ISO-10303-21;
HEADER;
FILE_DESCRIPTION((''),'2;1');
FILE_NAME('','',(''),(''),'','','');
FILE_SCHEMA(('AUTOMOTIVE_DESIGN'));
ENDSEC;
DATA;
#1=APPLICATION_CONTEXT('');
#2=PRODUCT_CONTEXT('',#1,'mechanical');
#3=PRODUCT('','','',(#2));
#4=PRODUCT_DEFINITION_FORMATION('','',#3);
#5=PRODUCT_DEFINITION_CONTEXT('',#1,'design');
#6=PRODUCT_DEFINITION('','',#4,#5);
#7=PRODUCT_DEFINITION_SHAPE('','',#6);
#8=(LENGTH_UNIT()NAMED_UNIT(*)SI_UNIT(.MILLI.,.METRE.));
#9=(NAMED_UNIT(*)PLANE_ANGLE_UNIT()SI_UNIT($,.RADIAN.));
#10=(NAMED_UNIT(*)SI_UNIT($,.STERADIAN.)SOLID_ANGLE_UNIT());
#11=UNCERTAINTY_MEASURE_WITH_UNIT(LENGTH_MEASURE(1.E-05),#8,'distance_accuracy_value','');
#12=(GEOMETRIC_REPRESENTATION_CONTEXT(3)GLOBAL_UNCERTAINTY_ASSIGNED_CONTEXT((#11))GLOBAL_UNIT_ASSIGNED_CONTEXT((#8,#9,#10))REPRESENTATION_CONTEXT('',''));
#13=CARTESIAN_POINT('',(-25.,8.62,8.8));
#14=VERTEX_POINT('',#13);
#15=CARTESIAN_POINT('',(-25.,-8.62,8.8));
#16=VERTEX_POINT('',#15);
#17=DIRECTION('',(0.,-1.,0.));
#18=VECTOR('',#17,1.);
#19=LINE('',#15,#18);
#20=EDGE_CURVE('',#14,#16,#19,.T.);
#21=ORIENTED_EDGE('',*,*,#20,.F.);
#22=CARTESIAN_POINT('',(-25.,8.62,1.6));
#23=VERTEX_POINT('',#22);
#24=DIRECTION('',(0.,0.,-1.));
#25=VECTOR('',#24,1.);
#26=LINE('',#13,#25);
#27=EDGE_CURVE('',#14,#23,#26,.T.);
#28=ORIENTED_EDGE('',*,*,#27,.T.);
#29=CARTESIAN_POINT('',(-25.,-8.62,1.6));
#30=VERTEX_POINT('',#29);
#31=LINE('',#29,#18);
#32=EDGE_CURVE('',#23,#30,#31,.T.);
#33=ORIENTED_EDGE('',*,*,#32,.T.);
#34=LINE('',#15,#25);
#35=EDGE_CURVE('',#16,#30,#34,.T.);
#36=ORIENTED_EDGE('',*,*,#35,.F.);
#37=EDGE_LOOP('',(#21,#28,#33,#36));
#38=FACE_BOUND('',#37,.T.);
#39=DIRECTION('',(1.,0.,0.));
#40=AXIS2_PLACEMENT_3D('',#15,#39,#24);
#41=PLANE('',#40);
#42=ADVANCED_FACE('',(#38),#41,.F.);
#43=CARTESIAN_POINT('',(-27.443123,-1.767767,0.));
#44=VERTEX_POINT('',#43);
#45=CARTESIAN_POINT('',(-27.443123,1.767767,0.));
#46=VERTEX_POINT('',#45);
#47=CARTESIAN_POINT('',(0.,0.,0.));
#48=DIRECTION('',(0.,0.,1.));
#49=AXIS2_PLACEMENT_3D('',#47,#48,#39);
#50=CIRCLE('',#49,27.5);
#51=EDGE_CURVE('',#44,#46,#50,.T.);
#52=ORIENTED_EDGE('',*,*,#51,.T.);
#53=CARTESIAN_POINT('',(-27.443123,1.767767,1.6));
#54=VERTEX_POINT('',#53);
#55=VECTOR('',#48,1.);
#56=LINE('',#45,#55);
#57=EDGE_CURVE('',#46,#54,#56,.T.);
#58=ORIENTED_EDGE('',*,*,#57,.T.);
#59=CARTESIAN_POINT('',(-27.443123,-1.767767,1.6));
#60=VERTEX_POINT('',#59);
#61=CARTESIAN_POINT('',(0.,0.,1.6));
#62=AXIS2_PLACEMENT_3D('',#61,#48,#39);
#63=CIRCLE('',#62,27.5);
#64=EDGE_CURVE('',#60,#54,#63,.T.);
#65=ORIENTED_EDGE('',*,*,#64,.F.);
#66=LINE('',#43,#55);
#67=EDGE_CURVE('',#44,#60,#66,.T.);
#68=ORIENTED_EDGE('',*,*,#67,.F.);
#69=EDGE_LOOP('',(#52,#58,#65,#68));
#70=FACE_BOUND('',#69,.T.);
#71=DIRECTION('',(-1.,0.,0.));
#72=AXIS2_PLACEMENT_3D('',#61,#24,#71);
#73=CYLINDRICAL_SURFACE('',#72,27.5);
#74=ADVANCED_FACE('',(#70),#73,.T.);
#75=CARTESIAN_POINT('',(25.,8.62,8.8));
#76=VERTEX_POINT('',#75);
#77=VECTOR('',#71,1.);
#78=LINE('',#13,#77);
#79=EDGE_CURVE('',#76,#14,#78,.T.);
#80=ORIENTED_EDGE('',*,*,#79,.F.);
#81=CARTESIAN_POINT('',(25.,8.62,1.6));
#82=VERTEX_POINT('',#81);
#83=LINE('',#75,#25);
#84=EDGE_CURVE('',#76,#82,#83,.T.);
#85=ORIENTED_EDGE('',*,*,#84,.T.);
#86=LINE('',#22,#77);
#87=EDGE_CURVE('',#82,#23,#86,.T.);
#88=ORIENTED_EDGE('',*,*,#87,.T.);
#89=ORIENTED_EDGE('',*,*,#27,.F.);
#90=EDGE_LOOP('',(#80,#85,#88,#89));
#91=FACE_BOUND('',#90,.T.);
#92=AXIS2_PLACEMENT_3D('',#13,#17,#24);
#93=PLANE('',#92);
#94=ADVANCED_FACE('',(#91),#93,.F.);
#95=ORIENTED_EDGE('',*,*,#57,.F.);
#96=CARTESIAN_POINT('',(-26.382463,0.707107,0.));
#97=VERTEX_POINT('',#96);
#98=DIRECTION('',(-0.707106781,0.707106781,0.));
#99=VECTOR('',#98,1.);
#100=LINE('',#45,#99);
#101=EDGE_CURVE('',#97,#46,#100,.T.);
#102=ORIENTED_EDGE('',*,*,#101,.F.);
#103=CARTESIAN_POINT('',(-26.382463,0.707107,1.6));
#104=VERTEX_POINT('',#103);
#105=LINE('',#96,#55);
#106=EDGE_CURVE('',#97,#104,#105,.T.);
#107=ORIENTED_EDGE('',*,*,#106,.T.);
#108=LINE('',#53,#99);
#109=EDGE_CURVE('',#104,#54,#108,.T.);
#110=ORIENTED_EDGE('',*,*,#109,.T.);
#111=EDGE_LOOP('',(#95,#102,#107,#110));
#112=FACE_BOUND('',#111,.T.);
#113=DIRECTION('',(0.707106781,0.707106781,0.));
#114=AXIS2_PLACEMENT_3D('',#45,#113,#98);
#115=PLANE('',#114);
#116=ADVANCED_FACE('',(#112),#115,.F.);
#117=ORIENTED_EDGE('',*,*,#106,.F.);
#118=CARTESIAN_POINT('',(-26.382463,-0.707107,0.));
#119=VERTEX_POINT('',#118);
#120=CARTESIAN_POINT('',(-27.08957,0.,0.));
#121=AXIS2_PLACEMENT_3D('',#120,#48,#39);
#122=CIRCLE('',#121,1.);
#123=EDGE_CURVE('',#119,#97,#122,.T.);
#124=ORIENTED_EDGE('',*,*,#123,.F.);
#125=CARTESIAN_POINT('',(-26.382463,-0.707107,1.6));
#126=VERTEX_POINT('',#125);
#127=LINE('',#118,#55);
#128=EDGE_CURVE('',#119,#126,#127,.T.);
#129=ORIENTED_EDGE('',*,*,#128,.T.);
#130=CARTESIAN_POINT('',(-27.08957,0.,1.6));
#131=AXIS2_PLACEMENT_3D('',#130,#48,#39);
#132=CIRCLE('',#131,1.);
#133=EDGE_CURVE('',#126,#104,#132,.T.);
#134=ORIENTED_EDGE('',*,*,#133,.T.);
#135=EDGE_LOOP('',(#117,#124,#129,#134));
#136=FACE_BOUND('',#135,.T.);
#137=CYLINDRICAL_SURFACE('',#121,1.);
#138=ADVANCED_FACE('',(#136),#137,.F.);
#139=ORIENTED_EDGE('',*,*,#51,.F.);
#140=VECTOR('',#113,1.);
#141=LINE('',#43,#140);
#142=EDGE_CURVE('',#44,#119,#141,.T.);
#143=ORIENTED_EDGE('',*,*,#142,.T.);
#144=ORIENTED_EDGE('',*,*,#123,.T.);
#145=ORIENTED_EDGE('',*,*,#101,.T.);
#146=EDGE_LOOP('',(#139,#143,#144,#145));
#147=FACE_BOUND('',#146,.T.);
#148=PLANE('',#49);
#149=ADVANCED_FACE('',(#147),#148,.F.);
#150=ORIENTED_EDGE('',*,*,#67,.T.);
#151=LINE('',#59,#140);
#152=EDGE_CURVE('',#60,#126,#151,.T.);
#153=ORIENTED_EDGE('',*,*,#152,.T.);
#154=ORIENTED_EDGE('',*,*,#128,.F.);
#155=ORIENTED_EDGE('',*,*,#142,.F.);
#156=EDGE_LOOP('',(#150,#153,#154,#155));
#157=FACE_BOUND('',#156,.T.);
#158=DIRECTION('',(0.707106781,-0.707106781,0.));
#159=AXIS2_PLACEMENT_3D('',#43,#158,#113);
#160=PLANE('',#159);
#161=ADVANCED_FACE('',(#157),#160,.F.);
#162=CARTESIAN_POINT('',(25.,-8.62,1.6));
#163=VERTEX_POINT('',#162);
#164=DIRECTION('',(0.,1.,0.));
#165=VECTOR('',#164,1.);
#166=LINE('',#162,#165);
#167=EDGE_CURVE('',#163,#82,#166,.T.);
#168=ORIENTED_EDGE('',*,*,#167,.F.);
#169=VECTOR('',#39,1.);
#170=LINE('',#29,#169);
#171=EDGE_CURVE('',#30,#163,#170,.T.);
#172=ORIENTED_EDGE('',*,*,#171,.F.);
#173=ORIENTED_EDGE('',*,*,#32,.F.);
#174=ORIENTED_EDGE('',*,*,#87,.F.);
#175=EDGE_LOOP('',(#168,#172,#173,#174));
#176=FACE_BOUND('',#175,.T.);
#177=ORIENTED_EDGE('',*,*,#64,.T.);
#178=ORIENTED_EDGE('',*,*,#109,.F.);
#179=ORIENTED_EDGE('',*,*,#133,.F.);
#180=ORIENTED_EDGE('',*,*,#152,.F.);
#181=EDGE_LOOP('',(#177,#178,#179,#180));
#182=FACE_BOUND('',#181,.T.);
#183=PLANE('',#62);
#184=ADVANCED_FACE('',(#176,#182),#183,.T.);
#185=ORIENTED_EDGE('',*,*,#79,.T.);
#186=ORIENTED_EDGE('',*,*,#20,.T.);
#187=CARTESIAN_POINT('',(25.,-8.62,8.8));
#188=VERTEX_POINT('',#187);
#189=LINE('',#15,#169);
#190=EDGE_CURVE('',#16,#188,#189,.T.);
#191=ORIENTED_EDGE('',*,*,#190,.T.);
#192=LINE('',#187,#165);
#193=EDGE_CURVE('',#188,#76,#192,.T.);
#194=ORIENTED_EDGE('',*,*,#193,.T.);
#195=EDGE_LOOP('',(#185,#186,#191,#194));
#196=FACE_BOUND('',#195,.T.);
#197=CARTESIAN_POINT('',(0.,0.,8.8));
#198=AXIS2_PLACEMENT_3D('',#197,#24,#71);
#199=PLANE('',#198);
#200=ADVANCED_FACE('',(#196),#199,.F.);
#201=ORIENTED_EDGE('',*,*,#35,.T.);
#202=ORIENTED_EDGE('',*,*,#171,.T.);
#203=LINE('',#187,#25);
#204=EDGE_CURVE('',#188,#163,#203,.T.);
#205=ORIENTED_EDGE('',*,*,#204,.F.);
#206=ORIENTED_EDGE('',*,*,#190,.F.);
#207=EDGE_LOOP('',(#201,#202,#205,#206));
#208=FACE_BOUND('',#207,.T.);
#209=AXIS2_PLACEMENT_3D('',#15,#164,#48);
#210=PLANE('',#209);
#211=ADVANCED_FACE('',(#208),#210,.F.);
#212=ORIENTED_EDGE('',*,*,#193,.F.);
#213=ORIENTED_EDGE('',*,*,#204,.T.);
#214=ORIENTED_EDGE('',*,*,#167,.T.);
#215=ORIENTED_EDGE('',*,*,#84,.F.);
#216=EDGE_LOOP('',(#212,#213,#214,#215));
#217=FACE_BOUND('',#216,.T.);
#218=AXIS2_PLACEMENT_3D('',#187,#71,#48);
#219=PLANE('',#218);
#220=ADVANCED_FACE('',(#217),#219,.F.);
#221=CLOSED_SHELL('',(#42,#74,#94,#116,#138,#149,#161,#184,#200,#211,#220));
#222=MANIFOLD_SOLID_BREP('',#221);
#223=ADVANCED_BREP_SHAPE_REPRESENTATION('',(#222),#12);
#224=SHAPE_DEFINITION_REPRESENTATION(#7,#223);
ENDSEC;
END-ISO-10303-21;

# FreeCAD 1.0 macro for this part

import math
import FreeCAD as App
import Part
import Sketcher
Q = App.Units.Quantity


def add_polygon(sketch, points):
    """Adds a closed chain of lines whose ends are joined by coincident constraints."""
    first, n = sketch.GeometryCount, len(points)
    for a, b in zip(points, points[1:] + points[:1]):
        sketch.addGeometry(Part.LineSegment(App.Vector(*a, 0), App.Vector(*b, 0)), False)
    for i in range(n):
        sketch.addConstraint(Sketcher.Constraint("Coincident", first + i, 2, first + (i + 1) % n, 1))

doc = App.newDocument("Part")
params = doc.addObject("Spreadsheet::Sheet", "Params")
for row, (alias, value) in enumerate([
    ("sketch1_diameter", "55 mm"),
    ("pad1_length", "1.6 mm"),
    ("sketch2_width", "50 mm"),
    ("sketch2_height", "17.24 mm"),
    ("pad2_length", "7.2 mm"),
    ("sketch3_radius", "1 mm"),
    ("sketch3_radius2", "27.5 mm"),
    ("sketch3_length", "1.5 mm"),
], start=1):
    params.set(f"A{row}", alias)
    params.set(f"B{row}", "=" + value)
    params.setAlias(f"B{row}", alias)

body = doc.addObject("PartDesign::Body", "Body")

sketch1 = body.newObject("Sketcher::SketchObject", "Sketch")
sketch1.AttachmentSupport = (doc.getObject("XY_Plane"), [""])
sketch1.MapMode = "FlatFace"
sketch1.addGeometry(Part.Circle(App.Vector(0, 0, 0), App.Vector(0, 0, 1), 27.5), False)
sketch1.addConstraint([
    Sketcher.Constraint("Coincident", 0, 3, -1, 1),
    Sketcher.Constraint("Diameter", 0, Q("55 mm")),
])
sketch1.setExpression("Constraints[1]", "Params.sketch1_diameter")
pad1 = body.newObject("PartDesign::Pad", "Pad")
pad1.Profile = sketch1
pad1.setExpression("Length", "Params.pad1_length")

sketch2 = body.newObject("Sketcher::SketchObject", "Sketch001")
sketch2.AttachmentSupport = (doc.getObject("XY_Plane"), [""])
sketch2.MapMode = "FlatFace"
sketch2.AttachmentOffset = App.Placement(App.Vector(0, 0, 1.6), App.Rotation())
add_polygon(sketch2, [(-25, 8.62), (-25, -8.62), (25, -8.62), (25, 8.62)])
sketch2.addConstraint([
    Sketcher.Constraint("Vertical", 0),
    Sketcher.Constraint("Horizontal", 1),
    Sketcher.Constraint("Vertical", 2),
    Sketcher.Constraint("Horizontal", 3),
    Sketcher.Constraint("Symmetric", 0, 2, 2, 2, -1, 1),
    Sketcher.Constraint("DistanceX", 1, 1, 1, 2, Q("50 mm")),
    Sketcher.Constraint("DistanceY", 0, 2, 0, 1, Q("17.24 mm")),
])
sketch2.setExpression("Constraints[9]", "Params.sketch2_width")
sketch2.setExpression("Constraints[10]", "Params.sketch2_height")
pad2 = body.newObject("PartDesign::Pad", "Pad001")
pad2.Profile = sketch2
pad2.setExpression("Length", "Params.pad2_length")

sketch3 = body.newObject("Sketcher::SketchObject", "Sketch002")
sketch3.AttachmentSupport = (doc.getObject("XY_Plane"), [""])
sketch3.MapMode = "FlatFace"
sketch3.AttachmentOffset = App.Placement(App.Vector(0, 0, 1.6), App.Rotation())
sketch3.addGeometry([
    Part.LineSegment(App.Vector(-26.382463, 0.707107, 0), App.Vector(-27.443123, 1.767767, 0)),
    Part.ArcOfCircle(Part.Circle(App.Vector(0, 0, 0), App.Vector(0, 0, 1), 27.5), math.radians(176.314346), math.radians(183.685654)),
    Part.LineSegment(App.Vector(-27.443123, -1.767767, 0), App.Vector(-26.382463, -0.707107, 0)),
    Part.ArcOfCircle(Part.Circle(App.Vector(-27.08957, 0, 0), App.Vector(0, 0, 1), 1), math.radians(-45), math.radians(45)),
], False)
sketch3.addConstraint([
    Sketcher.Constraint("Coincident", 0, 2, 1, 1),
    Sketcher.Constraint("Coincident", 1, 2, 2, 1),
    Sketcher.Constraint("Tangent", 2, 2, 3, 1),
    Sketcher.Constraint("Tangent", 3, 2, 0, 1),
    Sketcher.Constraint("Coincident", 1, 3, -1, 1),
    Sketcher.Constraint("Symmetric", 2, 2, 3, 2, -1),
    Sketcher.Constraint("Perpendicular", 0, 2),
    Sketcher.Constraint("Radius", 3, Q("1 mm")),
    Sketcher.Constraint("Radius", 1, Q("27.5 mm")),
    Sketcher.Constraint("Distance", 0, Q("1.5 mm")),
])
sketch3.setExpression("Constraints[7]", "Params.sketch3_radius")
sketch3.setExpression("Constraints[8]", "Params.sketch3_radius2")
sketch3.setExpression("Constraints[9]", "Params.sketch3_length")
pocket1 = body.newObject("PartDesign::Pocket", "Pocket")
pocket1.Profile = sketch3
pocket1.Type = "ThroughAll"

doc.recompute()
